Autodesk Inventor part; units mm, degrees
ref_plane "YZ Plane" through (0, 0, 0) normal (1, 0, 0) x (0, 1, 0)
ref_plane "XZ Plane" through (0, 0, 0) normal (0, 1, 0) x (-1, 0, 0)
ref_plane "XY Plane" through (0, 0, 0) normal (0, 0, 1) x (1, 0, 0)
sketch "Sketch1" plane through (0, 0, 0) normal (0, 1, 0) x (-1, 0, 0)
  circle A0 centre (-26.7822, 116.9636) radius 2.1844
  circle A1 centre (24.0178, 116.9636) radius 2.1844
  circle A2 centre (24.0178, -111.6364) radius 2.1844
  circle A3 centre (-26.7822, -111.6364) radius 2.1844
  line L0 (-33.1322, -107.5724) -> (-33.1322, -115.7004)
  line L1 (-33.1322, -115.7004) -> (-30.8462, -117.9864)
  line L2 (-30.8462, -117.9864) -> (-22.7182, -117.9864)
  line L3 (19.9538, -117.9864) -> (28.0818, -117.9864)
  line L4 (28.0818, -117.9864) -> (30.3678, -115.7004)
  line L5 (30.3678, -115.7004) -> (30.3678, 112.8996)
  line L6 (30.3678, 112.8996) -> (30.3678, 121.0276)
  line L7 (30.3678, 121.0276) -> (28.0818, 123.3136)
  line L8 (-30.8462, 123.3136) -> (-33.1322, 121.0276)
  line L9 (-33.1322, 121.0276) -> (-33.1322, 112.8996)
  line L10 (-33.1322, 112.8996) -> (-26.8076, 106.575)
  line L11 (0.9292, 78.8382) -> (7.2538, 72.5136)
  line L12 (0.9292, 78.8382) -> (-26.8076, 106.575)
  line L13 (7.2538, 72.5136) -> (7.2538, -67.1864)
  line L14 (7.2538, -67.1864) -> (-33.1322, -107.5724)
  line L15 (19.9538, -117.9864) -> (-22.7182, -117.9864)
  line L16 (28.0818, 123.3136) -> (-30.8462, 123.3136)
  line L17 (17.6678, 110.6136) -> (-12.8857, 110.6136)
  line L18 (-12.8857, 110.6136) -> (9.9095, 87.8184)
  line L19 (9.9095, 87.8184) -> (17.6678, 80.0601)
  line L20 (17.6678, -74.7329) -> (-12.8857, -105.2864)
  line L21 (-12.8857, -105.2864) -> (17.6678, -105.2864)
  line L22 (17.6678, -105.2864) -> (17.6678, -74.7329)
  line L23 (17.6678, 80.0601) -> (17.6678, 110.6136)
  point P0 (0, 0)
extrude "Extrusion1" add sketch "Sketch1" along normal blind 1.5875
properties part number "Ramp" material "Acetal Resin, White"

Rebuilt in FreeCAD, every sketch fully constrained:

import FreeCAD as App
import Part
import Sketcher
Q = App.Units.Quantity

doc = App.newDocument("Part")
body = doc.addObject("PartDesign::Body", "Body")

# Sketch on XZ plane
sketch1 = body.newObject("Sketcher::SketchObject", "Sketch")
sketch1.AttachmentSupport = (doc.getObject("XZ_Plane"), [""])
sketch1.MapMode = "FlatFace"
sketch1.addGeometry([
    Part.LineSegment(App.Vector(-7.2538, -67.1864, 0), App.Vector(33.1322, -107.5724, 0)),  # 0
    Part.LineSegment(App.Vector(33.1322, -107.5724, 0), App.Vector(33.1322, -115.7004, 0)),  # 1
    Part.LineSegment(App.Vector(33.1322, -115.7004, 0), App.Vector(30.8462, -117.9864, 0)),  # 2
    Part.LineSegment(App.Vector(30.8462, -117.9864, 0), App.Vector(-28.0818, -117.9864, 0)),  # 3
    Part.LineSegment(App.Vector(-28.0818, -117.9864, 0), App.Vector(-30.3678, -115.7004, 0)),  # 4
    Part.LineSegment(App.Vector(-30.3678, -115.7004, 0), App.Vector(-30.3678, 121.0276, 0)),  # 5
    Part.LineSegment(App.Vector(-30.3678, 121.0276, 0), App.Vector(-28.0818, 123.3136, 0)),  # 6
    Part.LineSegment(App.Vector(-28.0818, 123.3136, 0), App.Vector(30.8462, 123.3136, 0)),  # 7
    Part.LineSegment(App.Vector(30.8462, 123.3136, 0), App.Vector(33.1322, 121.0276, 0)),  # 8
    Part.LineSegment(App.Vector(33.1322, 121.0276, 0), App.Vector(33.1322, 112.8996, 0)),  # 9
    Part.LineSegment(App.Vector(33.1322, 112.8996, 0), App.Vector(-7.2538, 72.5136, 0)),  # 10
    Part.LineSegment(App.Vector(-7.2538, 72.5136, 0), App.Vector(-7.2538, -67.1864, 0)),  # 11
    Part.Circle(App.Vector(26.7822, -111.6364, 0), App.Vector(0, 0, 1), 2.1844),  # 12
    Part.LineSegment(App.Vector(12.8857, -105.2864, 0), App.Vector(-17.6678, -74.7329, 0)),  # 13
    Part.LineSegment(App.Vector(-17.6678, -74.7329, 0), App.Vector(-17.6678, -105.2864, 0)),  # 14
    Part.LineSegment(App.Vector(-17.6678, -105.2864, 0), App.Vector(12.8857, -105.2864, 0)),  # 15
    Part.Circle(App.Vector(-24.0178, -111.6364, 0), App.Vector(0, 0, 1), 2.1844),  # 16
    Part.Circle(App.Vector(26.7822, 116.9636, 0), App.Vector(0, 0, 1), 2.1844),  # 17
    Part.LineSegment(App.Vector(12.8857, 110.6136, 0), App.Vector(-17.6678, 110.6136, 0)),  # 18
    Part.LineSegment(App.Vector(-17.6678, 110.6136, 0), App.Vector(-17.6678, 80.0601, 0)),  # 19
    Part.LineSegment(App.Vector(-17.6678, 80.0601, 0), App.Vector(12.8857, 110.6136, 0)),  # 20
    Part.Circle(App.Vector(-24.0178, 116.9636, 0), App.Vector(0, 0, 1), 2.1844),  # 21
], False)
sketch1.addConstraint([
    Sketcher.Constraint("Coincident", 0, 2, 1, 1),
    Sketcher.Constraint("Coincident", 1, 2, 2, 1),
    Sketcher.Constraint("Coincident", 2, 2, 3, 1),
    Sketcher.Constraint("Coincident", 3, 2, 4, 1),
    Sketcher.Constraint("Coincident", 4, 2, 5, 1),
    Sketcher.Constraint("Coincident", 5, 2, 6, 1),
    Sketcher.Constraint("Coincident", 6, 2, 7, 1),
    Sketcher.Constraint("Coincident", 7, 2, 8, 1),
    Sketcher.Constraint("Coincident", 8, 2, 9, 1),
    Sketcher.Constraint("Coincident", 9, 2, 10, 1),
    Sketcher.Constraint("Coincident", 10, 2, 11, 1),
    Sketcher.Constraint("Coincident", 11, 2, 0, 1),
    Sketcher.Constraint("Coincident", 13, 2, 14, 1),
    Sketcher.Constraint("Coincident", 14, 2, 15, 1),
    Sketcher.Constraint("Coincident", 15, 2, 13, 1),
    Sketcher.Constraint("Coincident", 18, 2, 19, 1),
    Sketcher.Constraint("Coincident", 19, 2, 20, 1),
    Sketcher.Constraint("Coincident", 20, 2, 18, 1),
    Sketcher.Constraint("Vertical", 1),
    Sketcher.Constraint("Horizontal", 3),
    Sketcher.Constraint("Vertical", 5),
    Sketcher.Constraint("Horizontal", 7),
    Sketcher.Constraint("Vertical", 9),
    Sketcher.Constraint("Vertical", 11),
    Sketcher.Constraint("Vertical", 14),
    Sketcher.Constraint("Horizontal", 15),
    Sketcher.Constraint("Horizontal", 18),
    Sketcher.Constraint("Vertical", 19),
    Sketcher.Constraint("Equal", 12, 16),
    Sketcher.Constraint("Equal", 16, 17),
    Sketcher.Constraint("Equal", 17, 21),
    Sketcher.Constraint("Perpendicular", 0, 2),
    Sketcher.Constraint("Perpendicular", 2, 4),
    Sketcher.Constraint("Perpendicular", 4, 6),
    Sketcher.Constraint("Perpendicular", 6, 8),
    Sketcher.Constraint("Perpendicular", 8, 10),
    Sketcher.Constraint("Perpendicular", 10, 13),
    Sketcher.Constraint("Perpendicular", 13, 20),
    Sketcher.Constraint("Horizontal", 12, 3, 16, 3),
    Sketcher.Constraint("Horizontal", 17, 3, 21, 3),
    Sketcher.Constraint("Horizontal", 1, 2, 4, 2),
    Sketcher.Constraint("Horizontal", 5, 2, 8, 2),
    Sketcher.Constraint("Vertical", 12, 3, 17, 3),
    Sketcher.Constraint("Vertical", 16, 3, 21, 3),
    Sketcher.Constraint("Vertical", 3, 2, 6, 2),
    Sketcher.Constraint("Vertical", 2, 2, 7, 2),
    Sketcher.Constraint("Vertical", 1, 2, 8, 2),
    Sketcher.Constraint("Vertical", 14, 2, 18, 2),
    Sketcher.Constraint("Vertical", 15, 2, 20, 2),
    Sketcher.Constraint("Equal", 1, 9),
    Sketcher.Constraint("Diameter", 12, Q("0.172 in")),
    Sketcher.Constraint("DistanceY", 11, 2, 11, 1, Q("5.5 in")),
    Sketcher.Constraint("DistanceX", 16, 3, 12, 3, Q("2 in")),
    Sketcher.Constraint("DistanceY", 12, 3, 17, 3, Q("9 in")),
    Sketcher.Constraint("DistanceY", 0, 2, 5, 2, Q("9 in")),
    Sketcher.Constraint("DistanceY", 10, 2, 6, 2, Q("2 in")),
    Sketcher.Constraint("DistanceX", 3, 2, 3, 1, Q("2.32 in")),
    Sketcher.Constraint("DistanceY", 1, 2, 1, 1, Q("0.32 in")),
    Sketcher.Constraint("DistanceX", 4, 2, 13, 2, Q("0.5 in")),
    Sketcher.Constraint("DistanceY", 3, 2, 14, 2, Q("0.5 in")),
    Sketcher.Constraint("DistanceY", 18, 2, 6, 2, Q("0.5 in")),
    Sketcher.Constraint("DistanceX", 12, 3, 0, 2, Q("0.25 in")),
    Sketcher.Constraint("DistanceY", 12, 3, 0, 2, Q("0.16 in")),
    Sketcher.Constraint("DistanceX", 15, 1, 15, 2, Q("1.2029 in")),
    Sketcher.Constraint("DistanceX", -1, 1, 15, 2, Q("0.5073 in")),
    Sketcher.Constraint("DistanceY", 12, 3, -1, 1, Q("111.6364 mm")),
])
pad1 = body.newObject("PartDesign::Pad", "Pad")
pad1.Profile = sketch1
pad1.Length = Q("0.0625 in")
pad1.Reversed = True

doc.recompute()
